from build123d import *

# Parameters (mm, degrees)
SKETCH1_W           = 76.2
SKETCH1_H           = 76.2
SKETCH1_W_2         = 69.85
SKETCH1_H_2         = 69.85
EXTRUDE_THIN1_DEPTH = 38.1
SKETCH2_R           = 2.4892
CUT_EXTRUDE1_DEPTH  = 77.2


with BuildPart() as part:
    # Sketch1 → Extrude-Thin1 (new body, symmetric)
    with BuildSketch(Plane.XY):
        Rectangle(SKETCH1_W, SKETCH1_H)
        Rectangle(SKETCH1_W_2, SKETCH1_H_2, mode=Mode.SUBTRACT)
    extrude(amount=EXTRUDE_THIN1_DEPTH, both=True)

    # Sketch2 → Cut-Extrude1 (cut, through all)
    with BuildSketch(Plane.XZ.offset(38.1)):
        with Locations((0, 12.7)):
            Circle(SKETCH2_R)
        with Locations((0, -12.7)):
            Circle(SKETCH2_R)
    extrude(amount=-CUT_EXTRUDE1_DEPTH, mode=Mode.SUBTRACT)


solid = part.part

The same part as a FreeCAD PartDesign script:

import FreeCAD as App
import Part
import Sketcher
Q = App.Units.Quantity

doc = App.newDocument("Part")
params = doc.addObject("Spreadsheet::Sheet", "Params")
for row, (alias, value) in enumerate([
    ("sketch1_width", "3 in"),
    ("sketch1_width2", "2.75 in"),
    ("pad1_length", "3 in"),
    ("sketch2_diameter", "0.196 in"),
], start=1):
    params.set(f"A{row}", alias)
    params.set(f"B{row}", "=" + value)
    params.setAlias(f"B{row}", alias)

body = doc.addObject("PartDesign::Body", "Body")

sketch1 = doc.addObject("Sketcher::SketchObject", "Sketch")
body.addObject(sketch1)
sketch1.AttachmentSupport = (doc.XY_Plane, [""])
sketch1.MapMode = "FlatFace"
sketch1.addGeometry([
    Part.LineSegment(App.Vector(-38.1, 38.1, 0), App.Vector(-38.1, -38.1, 0)),
    Part.LineSegment(App.Vector(-38.1, -38.1, 0), App.Vector(38.1, -38.1, 0)),
    Part.LineSegment(App.Vector(38.1, -38.1, 0), App.Vector(38.1, 38.1, 0)),
    Part.LineSegment(App.Vector(38.1, 38.1, 0), App.Vector(-38.1, 38.1, 0)),
    Part.LineSegment(App.Vector(34.925, -34.925, 0), App.Vector(-34.925, -34.925, 0)),
    Part.LineSegment(App.Vector(-34.925, -34.925, 0), App.Vector(-34.925, 34.925, 0)),
    Part.LineSegment(App.Vector(-34.925, 34.925, 0), App.Vector(34.925, 34.925, 0)),
    Part.LineSegment(App.Vector(34.925, 34.925, 0), App.Vector(34.925, -34.925, 0)),
], False)
sketch1.addConstraint([
    Sketcher.Constraint("Coincident", 0, 2, 1, 1),
    Sketcher.Constraint("Coincident", 1, 2, 2, 1),
    Sketcher.Constraint("Coincident", 2, 2, 3, 1),
    Sketcher.Constraint("Coincident", 3, 2, 0, 1),
    Sketcher.Constraint("Coincident", 4, 2, 5, 1),
    Sketcher.Constraint("Coincident", 5, 2, 6, 1),
    Sketcher.Constraint("Coincident", 6, 2, 7, 1),
    Sketcher.Constraint("Coincident", 7, 2, 4, 1),
    Sketcher.Constraint("Vertical", 0),
    Sketcher.Constraint("Horizontal", 1),
    Sketcher.Constraint("Vertical", 2),
    Sketcher.Constraint("Horizontal", 3),
    Sketcher.Constraint("Horizontal", 4),
    Sketcher.Constraint("Vertical", 5),
    Sketcher.Constraint("Horizontal", 6),
    Sketcher.Constraint("Vertical", 7),
    Sketcher.Constraint("Symmetric", 0, 2, 2, 2, -1, 1),
    Sketcher.Constraint("Symmetric", 4, 2, 6, 2, -1, 1),
    Sketcher.Constraint("Equal", 3, 0),
    Sketcher.Constraint("Equal", 6, 5),
    Sketcher.Constraint("DistanceX", 1, 1, 1, 2, Q("3 in")),
    Sketcher.Constraint("DistanceX", 4, 2, 4, 1, Q("2.75 in")),
])
sketch1.setExpression("Constraints[20]", "Params.sketch1_width")
sketch1.setExpression("Constraints[21]", "Params.sketch1_width2")
pad1 = doc.addObject("PartDesign::Pad", "Pad")
body.addObject(pad1)
pad1.Profile = sketch1
pad1.setExpression("Length", "Params.pad1_length")
pad1.Midplane = True

sketch2 = doc.addObject("Sketcher::SketchObject", "Sketch001")
body.addObject(sketch2)
sketch2.AttachmentSupport = (doc.XZ_Plane, [""])
sketch2.MapMode = "FlatFace"
sketch2.AttachmentOffset = App.Placement(App.Vector(0, 0, 1.5 * 25.4), App.Rotation())
sketch2.addGeometry([
    Part.Circle(App.Vector(0, 12.7, 0), App.Vector(0, 0, 1), 2.4892),
    Part.Circle(App.Vector(0, -12.7, 0), App.Vector(0, 0, 1), 2.4892),
], False)
sketch2.addConstraint([
    Sketcher.Constraint("Equal", 0, 1),
    Sketcher.Constraint("Symmetric", 0, 3, 1, 3, -1, 1),
    Sketcher.Constraint("PointOnObject", 0, 3, -2),
    Sketcher.Constraint("Diameter", 0, Q("0.196 in")),
    Sketcher.Constraint("DistanceY", 1, 3, 0, 3, Q("1 in")),
])
sketch2.setExpression("Constraints[3]", "Params.sketch2_diameter")
pocket1 = doc.addObject("PartDesign::Pocket", "Pocket")
body.addObject(pocket1)
pocket1.Profile = sketch2
pocket1.Type = "ThroughAll"

doc.recompute()
